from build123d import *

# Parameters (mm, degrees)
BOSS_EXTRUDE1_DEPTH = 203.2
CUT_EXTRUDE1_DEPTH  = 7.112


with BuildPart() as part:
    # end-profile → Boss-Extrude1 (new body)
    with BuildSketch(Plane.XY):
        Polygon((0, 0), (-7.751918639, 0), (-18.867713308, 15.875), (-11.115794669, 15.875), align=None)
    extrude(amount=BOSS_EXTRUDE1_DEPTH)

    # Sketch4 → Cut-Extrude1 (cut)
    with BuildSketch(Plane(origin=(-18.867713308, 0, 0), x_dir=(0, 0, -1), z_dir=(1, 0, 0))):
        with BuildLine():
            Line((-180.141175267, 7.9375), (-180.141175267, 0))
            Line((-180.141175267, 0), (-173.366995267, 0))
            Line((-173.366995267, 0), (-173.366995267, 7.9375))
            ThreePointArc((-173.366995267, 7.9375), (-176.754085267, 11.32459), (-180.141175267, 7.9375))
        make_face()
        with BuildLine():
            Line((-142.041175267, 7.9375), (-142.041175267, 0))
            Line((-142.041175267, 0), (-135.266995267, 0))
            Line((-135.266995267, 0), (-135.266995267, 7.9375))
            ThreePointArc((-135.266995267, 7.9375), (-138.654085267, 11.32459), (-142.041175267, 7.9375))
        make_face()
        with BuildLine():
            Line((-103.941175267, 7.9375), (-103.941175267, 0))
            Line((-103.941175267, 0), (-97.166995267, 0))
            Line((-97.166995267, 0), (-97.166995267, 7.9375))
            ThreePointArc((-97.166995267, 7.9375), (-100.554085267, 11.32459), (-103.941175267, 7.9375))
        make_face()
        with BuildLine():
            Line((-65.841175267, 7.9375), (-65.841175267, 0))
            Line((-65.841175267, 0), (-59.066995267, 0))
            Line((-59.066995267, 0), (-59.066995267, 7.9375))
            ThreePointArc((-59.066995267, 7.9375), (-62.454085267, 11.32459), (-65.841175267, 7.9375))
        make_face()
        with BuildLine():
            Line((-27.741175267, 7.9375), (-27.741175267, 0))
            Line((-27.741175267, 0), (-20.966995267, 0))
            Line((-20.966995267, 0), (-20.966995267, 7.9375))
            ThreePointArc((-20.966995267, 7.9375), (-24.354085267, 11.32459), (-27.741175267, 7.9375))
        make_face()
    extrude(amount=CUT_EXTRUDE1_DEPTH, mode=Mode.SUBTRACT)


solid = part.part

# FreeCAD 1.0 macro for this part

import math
import FreeCAD as App
import Part
import Sketcher
from FreeCAD import Vector
Q = App.Units.Quantity

doc = App.newDocument("Part")
body = doc.addObject("PartDesign::Body", "Body")

sketch1 = doc.addObject("Sketcher::SketchObject", "Sketch")
body.addObject(sketch1)
sketch1.AttachmentSupport = (doc.XY_Plane, [""])
sketch1.MapMode = "FlatFace"
sketch1.addGeometry([
    Part.LineSegment(Vector(-8, 0, 0), Vector(0, 0, 0)),
    Part.LineSegment(Vector(0, 0, 0), Vector(-11, 16, 0)),
    Part.LineSegment(Vector(-11, 16, 0), Vector(-19, 16, 0)),
    Part.LineSegment(Vector(-19, 16, 0), Vector(-8, 0, 0)),
], False)
sketch1.addConstraint([
    Sketcher.Constraint("Coincident", 0, 2, 1, 1),
    Sketcher.Constraint("Coincident", 1, 2, 2, 1),
    Sketcher.Constraint("Coincident", 2, 2, 3, 1),
    Sketcher.Constraint("Coincident", 3, 2, 0, 1),
    Sketcher.Constraint("Horizontal", 0),
    Sketcher.Constraint("Horizontal", 2),
    Sketcher.Constraint("Coincident", 0, 2, -1, 1),
    Sketcher.Constraint("Parallel", 1, 3),
    Sketcher.Constraint("Angle", 1, Q("125 deg")),
    Sketcher.Constraint("DistanceY", -1, 1, 1, 2, Q("0.625 in")),
    Sketcher.Constraint("DistanceX", 0, 1, 0, 2, Q("7.751919 mm")),
])
pad1 = doc.addObject("PartDesign::Pad", "Pad")
body.addObject(pad1)
pad1.Profile = sketch1
pad1.Length = Q("8 in")

sketch2 = doc.addObject("Sketcher::SketchObject", "Sketch001")
body.addObject(sketch2)
sketch2.AttachmentSupport = (doc.YZ_Plane, [""])
sketch2.MapMode = "FlatFace"
sketch2.AttachmentOffset = App.Placement(Vector(0, 0, -18.867713), App.Rotation())
sketch2.addGeometry([
    Part.LineSegment(Vector(7.9, 180.1, 0), Vector(0, 180.1, 0)),
    Part.LineSegment(Vector(0, 180.1, 0), Vector(0, 173.4, 0)),
    Part.LineSegment(Vector(0, 173.4, 0), Vector(7.9, 173.4, 0)),
    Part.ArcOfCircle(Part.Circle(Vector(7.9, 176.8, 0), Vector(0, 0, 1), 3.4), math.radians(-90), math.radians(90)),
    Part.LineSegment(Vector(7.9, 142, 0), Vector(0, 142, 0)),
    Part.LineSegment(Vector(0, 142, 0), Vector(0, 135.3, 0)),
    Part.LineSegment(Vector(0, 135.3, 0), Vector(7.9, 135.3, 0)),
    Part.ArcOfCircle(Part.Circle(Vector(7.9, 138.7, 0), Vector(0, 0, 1), 3.4), math.radians(-90), math.radians(90)),
    Part.LineSegment(Vector(7.9, 103.9, 0), Vector(0, 103.9, 0)),
    Part.LineSegment(Vector(0, 103.9, 0), Vector(0, 97.2, 0)),
    Part.LineSegment(Vector(0, 97.2, 0), Vector(7.9, 97.2, 0)),
    Part.ArcOfCircle(Part.Circle(Vector(7.9, 100.6, 0), Vector(0, 0, 1), 3.4), math.radians(-90), math.radians(90)),
    Part.LineSegment(Vector(7.9, 65.8, 0), Vector(0, 65.8, 0)),
    Part.LineSegment(Vector(0, 65.8, 0), Vector(0, 59.1, 0)),
    Part.LineSegment(Vector(0, 59.1, 0), Vector(7.9, 59.1, 0)),
    Part.ArcOfCircle(Part.Circle(Vector(7.9, 62.5, 0), Vector(0, 0, 1), 3.4), math.radians(-90), math.radians(90)),
    Part.LineSegment(Vector(7.9, 27.7, 0), Vector(0, 27.7, 0)),
    Part.LineSegment(Vector(0, 27.7, 0), Vector(0, 21, 0)),
    Part.LineSegment(Vector(0, 21, 0), Vector(7.9, 21, 0)),
    Part.ArcOfCircle(Part.Circle(Vector(7.9, 24.4, 0), Vector(0, 0, 1), 3.4), math.radians(-90), math.radians(90)),
], False)
sketch2.addConstraint([
    Sketcher.Constraint("Coincident", 0, 2, 1, 1),
    Sketcher.Constraint("Coincident", 1, 2, 2, 1),
    Sketcher.Constraint("Tangent", 2, 2, 3, 1),
    Sketcher.Constraint("Tangent", 3, 2, 0, 1),
    Sketcher.Constraint("Coincident", 4, 2, 5, 1),
    Sketcher.Constraint("Coincident", 5, 2, 6, 1),
    Sketcher.Constraint("Tangent", 6, 2, 7, 1),
    Sketcher.Constraint("Tangent", 7, 2, 4, 1),
    Sketcher.Constraint("Coincident", 8, 2, 9, 1),
    Sketcher.Constraint("Coincident", 9, 2, 10, 1),
    Sketcher.Constraint("Tangent", 10, 2, 11, 1),
    Sketcher.Constraint("Tangent", 11, 2, 8, 1),
    Sketcher.Constraint("Coincident", 12, 2, 13, 1),
    Sketcher.Constraint("Coincident", 13, 2, 14, 1),
    Sketcher.Constraint("Tangent", 14, 2, 15, 1),
    Sketcher.Constraint("Tangent", 15, 2, 12, 1),
    Sketcher.Constraint("Coincident", 16, 2, 17, 1),
    Sketcher.Constraint("Coincident", 17, 2, 18, 1),
    Sketcher.Constraint("Tangent", 18, 2, 19, 1),
    Sketcher.Constraint("Tangent", 19, 2, 16, 1),
    Sketcher.Constraint("Horizontal", 0),
    Sketcher.Constraint("Vertical", 1),
    Sketcher.Constraint("Horizontal", 2),
    Sketcher.Constraint("Horizontal", 4),
    Sketcher.Constraint("Vertical", 5),
    Sketcher.Constraint("Horizontal", 6),
    Sketcher.Constraint("Horizontal", 8),
    Sketcher.Constraint("Vertical", 9),
    Sketcher.Constraint("Horizontal", 10),
    Sketcher.Constraint("Horizontal", 12),
    Sketcher.Constraint("Vertical", 13),
    Sketcher.Constraint("Horizontal", 14),
    Sketcher.Constraint("Horizontal", 16),
    Sketcher.Constraint("Vertical", 17),
    Sketcher.Constraint("Horizontal", 18),
    Sketcher.Constraint("Equal", 3, 7),
    Sketcher.Constraint("Equal", 7, 11),
    Sketcher.Constraint("Equal", 11, 15),
    Sketcher.Constraint("Equal", 15, 19),
    Sketcher.Constraint("PointOnObject", 0, 2, -2),
    Sketcher.Constraint("PointOnObject", 4, 2, -2),
    Sketcher.Constraint("PointOnObject", 8, 2, -2),
    Sketcher.Constraint("PointOnObject", 12, 2, -2),
    Sketcher.Constraint("PointOnObject", 16, 2, -2),
    Sketcher.Constraint("Vertical", 3, 3, 7, 3),
    Sketcher.Constraint("Vertical", 7, 3, 11, 3),
    Sketcher.Constraint("Vertical", 11, 3, 15, 3),
    Sketcher.Constraint("Vertical", 15, 3, 19, 3),
    Sketcher.Constraint("DistanceY", 11, 3, 3, 3, Q("3 in")),
    Sketcher.Constraint("DistanceY", 15, 3, 7, 3, Q("3 in")),
    Sketcher.Constraint("DistanceY", 19, 3, 11, 3, Q("3 in")),
    Sketcher.Constraint("DistanceY", 7, 3, 3, 3, Q("1.5 in")),
    Sketcher.Constraint("DistanceX", 0, 2, 0, 1, Q("0.3125 in")),
    Sketcher.Constraint("DistanceY", 1, 2, 1, 1, Q("0.2667 in")),
    Sketcher.Constraint("DistanceY", -1, 1, 3, 3, Q("176.754085 mm")),
])
pocket1 = doc.addObject("PartDesign::Pocket", "Pocket")
body.addObject(pocket1)
pocket1.Profile = sketch2
pocket1.Length = Q("0.28 in")
pocket1.Reversed = True

doc.recompute()
